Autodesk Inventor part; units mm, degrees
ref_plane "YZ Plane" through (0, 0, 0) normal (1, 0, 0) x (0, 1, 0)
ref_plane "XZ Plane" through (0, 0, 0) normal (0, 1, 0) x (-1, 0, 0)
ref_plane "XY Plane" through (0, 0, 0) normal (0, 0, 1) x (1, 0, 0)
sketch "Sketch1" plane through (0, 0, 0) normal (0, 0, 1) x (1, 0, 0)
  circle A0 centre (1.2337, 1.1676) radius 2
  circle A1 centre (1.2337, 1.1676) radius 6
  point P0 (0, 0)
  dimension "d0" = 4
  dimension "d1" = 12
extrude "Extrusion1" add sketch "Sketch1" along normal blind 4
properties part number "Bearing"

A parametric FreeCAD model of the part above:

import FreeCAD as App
import Part
import Sketcher
from FreeCAD import Vector

doc = App.newDocument("Part")
body = doc.addObject("PartDesign::Body", "Body")

sketch1 = doc.addObject("Sketcher::SketchObject", "Sketch")
body.addObject(sketch1)
sketch1.AttachmentSupport = (doc.XY_Plane, [""])
sketch1.MapMode = "FlatFace"
sketch1.addGeometry([
    Part.Circle(Vector(1.2337, 1.1676, 0), Vector(0, 0, 1), 6),
    Part.Circle(Vector(1.2337, 1.1676, 0), Vector(0, 0, 1), 2),
], False)
sketch1.addConstraint([
    Sketcher.Constraint("Coincident", 1, 3, 0, 3),
    Sketcher.Constraint("Diameter", 0, 12.0),
    Sketcher.Constraint("Diameter", 1, 4.0),
    Sketcher.Constraint("DistanceX", -1, 1, 0, 3, 1.2337),
    Sketcher.Constraint("DistanceY", -1, 1, 0, 3, 1.1676),
])
pad1 = doc.addObject("PartDesign::Pad", "Pad")
body.addObject(pad1)
pad1.Profile = sketch1
pad1.Length = 4

doc.recompute()
